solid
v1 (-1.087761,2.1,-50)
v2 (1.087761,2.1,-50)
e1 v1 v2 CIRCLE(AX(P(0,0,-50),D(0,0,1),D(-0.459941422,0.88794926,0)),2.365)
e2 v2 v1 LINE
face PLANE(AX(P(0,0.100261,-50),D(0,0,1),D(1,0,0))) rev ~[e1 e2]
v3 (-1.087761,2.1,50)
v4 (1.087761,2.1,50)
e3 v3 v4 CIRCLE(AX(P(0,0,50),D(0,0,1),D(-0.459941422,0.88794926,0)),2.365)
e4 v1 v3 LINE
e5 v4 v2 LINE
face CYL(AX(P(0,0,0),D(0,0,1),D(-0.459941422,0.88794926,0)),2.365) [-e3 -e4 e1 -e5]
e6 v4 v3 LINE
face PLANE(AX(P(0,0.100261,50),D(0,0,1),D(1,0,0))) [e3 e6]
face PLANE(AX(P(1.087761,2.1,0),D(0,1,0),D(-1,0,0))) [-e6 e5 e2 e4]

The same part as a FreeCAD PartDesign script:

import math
import FreeCAD as App
import Part
import Sketcher

V = App.Vector

doc = App.newDocument("Part")
body = doc.addObject("PartDesign::Body", "Body")

# Sketch on XY plane
sketch1 = body.newObject("Sketcher::SketchObject", "Sketch")
sketch1.AttachmentSupport = (doc.getObject("XY_Plane"), [""])
sketch1.MapMode = "FlatFace"
sketch1.addGeometry([
    Part.LineSegment(V(1.1, 2.1, 0), V(-1.1, 2.1, 0)),
    Part.ArcOfCircle(Part.Circle(V(0, 0, 0), V(0, 0, 1), 2.4), math.radians(117), math.radians(423)),
], False)
sketch1.addConstraint([
    Sketcher.Constraint("Coincident", 0, 1, 1, 2),
    Sketcher.Constraint("Coincident", 1, 1, 0, 2),
    Sketcher.Constraint("Horizontal", 0),
    Sketcher.Constraint("Coincident", 1, 3, -1, 1),
    Sketcher.Constraint("Radius", 1, 2.365),
    Sketcher.Constraint("DistanceY", -1, 1, 0, 1, 2.1),
])
pad1 = body.newObject("PartDesign::Pad", "Pad")
pad1.Profile = sketch1
pad1.Type = "TwoLengths"
pad1.Length = 50
pad1.Length2 = 50

doc.recompute()
